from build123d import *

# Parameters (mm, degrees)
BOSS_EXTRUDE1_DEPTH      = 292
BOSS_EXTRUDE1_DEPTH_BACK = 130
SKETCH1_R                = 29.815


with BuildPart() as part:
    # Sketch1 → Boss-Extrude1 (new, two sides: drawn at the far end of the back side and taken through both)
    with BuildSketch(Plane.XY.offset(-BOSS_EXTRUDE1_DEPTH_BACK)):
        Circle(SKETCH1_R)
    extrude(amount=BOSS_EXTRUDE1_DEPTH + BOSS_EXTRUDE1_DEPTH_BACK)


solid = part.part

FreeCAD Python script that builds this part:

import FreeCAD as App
import Part
import Sketcher
Q = App.Units.Quantity

doc = App.newDocument("Part")
params = doc.addObject("Spreadsheet::Sheet", "Params")
for row, (alias, value) in enumerate([
    ("sketch1_diameter", "59.63 mm"),
    ("pad1_length", "292 mm"),
    ("pad1_length2", "130 mm"),
], start=1):
    params.set(f"A{row}", alias)
    params.set(f"B{row}", "=" + value)
    params.setAlias(f"B{row}", alias)

body = doc.addObject("PartDesign::Body", "Body")

# Sketch on XY plane
sketch1 = doc.addObject("Sketcher::SketchObject", "Sketch")
body.addObject(sketch1)
sketch1.AttachmentSupport = (doc.XY_Plane, [""])
sketch1.MapMode = "FlatFace"
sketch1.addGeometry(Part.Circle(App.Vector(0, 0, 0), App.Vector(0, 0, 1), 30), False)
sketch1.addConstraint(Sketcher.Constraint("Coincident", 0, 3, -1, 1))
sketch1.addConstraint(Sketcher.Constraint("Diameter", 0, Q("59.63 mm")))
sketch1.setExpression("Constraints[1]", "Params.sketch1_diameter")
pad1 = doc.addObject("PartDesign::Pad", "Pad")
body.addObject(pad1)
pad1.Profile = sketch1
pad1.Type = "TwoLengths"
pad1.setExpression("Length", "Params.pad1_length")
pad1.setExpression("Length2", "Params.pad1_length2")

doc.recompute()
